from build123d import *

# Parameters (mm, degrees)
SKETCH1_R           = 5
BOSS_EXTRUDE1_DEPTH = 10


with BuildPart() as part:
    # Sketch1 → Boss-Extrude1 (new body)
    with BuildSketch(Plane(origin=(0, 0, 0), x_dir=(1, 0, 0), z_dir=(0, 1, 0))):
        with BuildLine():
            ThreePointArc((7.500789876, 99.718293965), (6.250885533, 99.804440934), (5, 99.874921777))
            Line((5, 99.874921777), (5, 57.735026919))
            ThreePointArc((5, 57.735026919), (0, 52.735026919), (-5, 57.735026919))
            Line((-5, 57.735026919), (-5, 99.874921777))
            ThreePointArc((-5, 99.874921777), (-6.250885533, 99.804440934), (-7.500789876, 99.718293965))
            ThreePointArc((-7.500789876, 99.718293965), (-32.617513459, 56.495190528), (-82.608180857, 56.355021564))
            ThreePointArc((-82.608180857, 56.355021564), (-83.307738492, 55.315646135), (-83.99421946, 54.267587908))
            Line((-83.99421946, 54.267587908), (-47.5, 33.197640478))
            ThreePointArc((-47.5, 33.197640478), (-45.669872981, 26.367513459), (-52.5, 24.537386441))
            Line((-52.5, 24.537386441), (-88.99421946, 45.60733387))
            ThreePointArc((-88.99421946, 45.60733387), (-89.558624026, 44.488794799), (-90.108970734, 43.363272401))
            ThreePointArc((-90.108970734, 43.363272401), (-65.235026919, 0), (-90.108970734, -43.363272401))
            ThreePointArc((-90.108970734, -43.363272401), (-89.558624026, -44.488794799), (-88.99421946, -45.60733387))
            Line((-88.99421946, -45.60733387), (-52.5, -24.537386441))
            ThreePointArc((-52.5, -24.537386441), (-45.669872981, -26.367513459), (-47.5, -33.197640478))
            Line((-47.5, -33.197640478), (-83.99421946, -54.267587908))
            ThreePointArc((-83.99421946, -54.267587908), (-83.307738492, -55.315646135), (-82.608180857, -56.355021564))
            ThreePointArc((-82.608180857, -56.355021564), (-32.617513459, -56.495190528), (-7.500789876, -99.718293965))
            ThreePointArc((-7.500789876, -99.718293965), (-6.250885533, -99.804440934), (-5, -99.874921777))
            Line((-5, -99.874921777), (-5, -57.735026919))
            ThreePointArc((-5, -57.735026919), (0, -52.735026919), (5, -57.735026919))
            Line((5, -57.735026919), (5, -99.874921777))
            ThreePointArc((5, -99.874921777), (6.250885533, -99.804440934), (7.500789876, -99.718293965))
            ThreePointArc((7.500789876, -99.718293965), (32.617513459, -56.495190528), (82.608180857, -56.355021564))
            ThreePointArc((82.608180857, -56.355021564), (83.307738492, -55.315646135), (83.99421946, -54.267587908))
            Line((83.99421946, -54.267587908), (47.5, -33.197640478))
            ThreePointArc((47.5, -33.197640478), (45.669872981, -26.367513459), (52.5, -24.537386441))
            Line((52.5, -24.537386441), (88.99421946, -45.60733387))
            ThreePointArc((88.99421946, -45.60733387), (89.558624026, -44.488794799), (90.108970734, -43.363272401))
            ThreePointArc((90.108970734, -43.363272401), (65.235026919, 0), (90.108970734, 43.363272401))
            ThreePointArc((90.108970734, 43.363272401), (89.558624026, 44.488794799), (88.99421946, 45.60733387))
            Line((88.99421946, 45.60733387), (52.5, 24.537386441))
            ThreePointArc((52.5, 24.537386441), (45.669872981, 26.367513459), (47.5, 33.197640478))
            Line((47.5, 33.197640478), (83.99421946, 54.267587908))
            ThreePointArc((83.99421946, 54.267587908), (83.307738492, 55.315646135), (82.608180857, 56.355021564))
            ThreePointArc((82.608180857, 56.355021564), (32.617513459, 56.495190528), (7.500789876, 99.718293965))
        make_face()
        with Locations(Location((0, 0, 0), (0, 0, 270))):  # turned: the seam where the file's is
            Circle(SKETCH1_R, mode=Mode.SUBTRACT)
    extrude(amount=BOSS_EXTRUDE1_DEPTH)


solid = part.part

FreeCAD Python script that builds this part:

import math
import FreeCAD as App
import Part
import Sketcher

doc = App.newDocument("Part")
body = doc.addObject("PartDesign::Body", "Body")

# Sketch on XZ plane
sketch1 = body.newObject("Sketcher::SketchObject", "Sketch")
sketch1.AttachmentSupport = (doc.getObject("XZ_Plane"), [""])
sketch1.MapMode = "FlatFace"
sketch1.addGeometry(Part.ArcOfCircle(Part.Circle(App.Vector(0, -0.000006, 0), App.Vector(0, 0, 1), 99.999994), math.radians(-87.134016), math.radians(-85.698324)), False)
sketch1.addGeometry(Part.LineSegment(App.Vector(5, -99.874922, 0), App.Vector(5, -57.735027, 0)), False)
sketch1.addGeometry(Part.ArcOfCircle(Part.Circle(App.Vector(0, -57.735027, 0), App.Vector(0, 0, 1), 5), math.radians(0), math.radians(180)), False)
sketch1.addGeometry(Part.LineSegment(App.Vector(-5, -57.735027, 0), App.Vector(-5, -99.874922, 0)), False)
sketch1.addGeometry(Part.ArcOfCircle(Part.Circle(App.Vector(0, -0.000006, 0), App.Vector(0, 0, 1), 99.999994), math.radians(-94.301676), math.radians(-92.865984)), False)
sketch1.addGeometry(Part.ArcOfCircle(Part.Circle(App.Vector(-57.735027, -100, 0), App.Vector(0, 0, 1), 50.235027), math.radians(0.321303), math.radians(119.678697)), False)
sketch1.addGeometry(Part.ArcOfCircle(Part.Circle(App.Vector(0.000002, 0.000001, 0), App.Vector(0, 0, 1), 100.000002), math.radians(-147.134016), math.radians(-145.698324)), False)
sketch1.addGeometry(Part.LineSegment(App.Vector(-83.994219, -54.267588, 0), App.Vector(-47.5, -33.19764, 0)), False)
sketch1.addGeometry(Part.ArcOfCircle(Part.Circle(App.Vector(-50, -28.867513, 0), App.Vector(0, 0, 1), 5), math.radians(-60), math.radians(120)), False)
sketch1.addGeometry(Part.LineSegment(App.Vector(-52.5, -24.537386, 0), App.Vector(-88.994219, -45.607334, 0)), False)
sketch1.addGeometry(Part.ArcOfCircle(Part.Circle(App.Vector(-0.000003, -0.000002, 0), App.Vector(0, 0, 1), 99.999997), math.radians(-154.301676), math.radians(-152.865984)), False)
sketch1.addGeometry(Part.ArcOfCircle(Part.Circle(App.Vector(-115.470054, 0, 0), App.Vector(0, 0, 1), 50.235027), math.radians(-59.678697), math.radians(59.678697)), False)
sketch1.addGeometry(Part.ArcOfCircle(Part.Circle(App.Vector(-0.000003, 0.000002, 0), App.Vector(0, 0, 1), 99.999997), math.radians(152.865984), math.radians(154.301676)), False)
sketch1.addGeometry(Part.LineSegment(App.Vector(-88.994219, 45.607334, 0), App.Vector(-52.5, 24.537386, 0)), False)
sketch1.addGeometry(Part.ArcOfCircle(Part.Circle(App.Vector(-50, 28.867513, 0), App.Vector(0, 0, 1), 5), math.radians(-120), math.radians(60)), False)
sketch1.addGeometry(Part.LineSegment(App.Vector(-47.5, 33.19764, 0), App.Vector(-83.994219, 54.267588, 0)), False)
sketch1.addGeometry(Part.ArcOfCircle(Part.Circle(App.Vector(0.000002, -0.000001, 0), App.Vector(0, 0, 1), 100.000002), math.radians(145.698324), math.radians(147.134016)), False)
sketch1.addGeometry(Part.ArcOfCircle(Part.Circle(App.Vector(-57.735027, 100, 0), App.Vector(0, 0, 1), 50.235027), math.radians(-119.678697), math.radians(-0.321303)), False)
sketch1.addGeometry(Part.ArcOfCircle(Part.Circle(App.Vector(0, 0.000006, 0), App.Vector(0, 0, 1), 99.999994), math.radians(92.865984), math.radians(94.301676)), False)
sketch1.addGeometry(Part.LineSegment(App.Vector(-5, 99.874922, 0), App.Vector(-5, 57.735027, 0)), False)
sketch1.addGeometry(Part.ArcOfCircle(Part.Circle(App.Vector(0, 57.735027, 0), App.Vector(0, 0, 1), 5), math.radians(180), math.radians(360)), False)
sketch1.addGeometry(Part.LineSegment(App.Vector(5, 57.735027, 0), App.Vector(5, 99.874922, 0)), False)
sketch1.addGeometry(Part.ArcOfCircle(Part.Circle(App.Vector(0, 0.000006, 0), App.Vector(0, 0, 1), 99.999994), math.radians(85.698324), math.radians(87.134016)), False)
sketch1.addGeometry(Part.ArcOfCircle(Part.Circle(App.Vector(57.735027, 100, 0), App.Vector(0, 0, 1), 50.235027), math.radians(-179.678697), math.radians(-60.321303)), False)
sketch1.addGeometry(Part.ArcOfCircle(Part.Circle(App.Vector(-0.000002, -0.000001, 0), App.Vector(0, 0, 1), 100.000002), math.radians(32.865984), math.radians(34.301676)), False)
sketch1.addGeometry(Part.LineSegment(App.Vector(83.994219, 54.267588, 0), App.Vector(47.5, 33.19764, 0)), False)
sketch1.addGeometry(Part.ArcOfCircle(Part.Circle(App.Vector(50, 28.867513, 0), App.Vector(0, 0, 1), 5), math.radians(120), math.radians(300)), False)
sketch1.addGeometry(Part.LineSegment(App.Vector(52.5, 24.537386, 0), App.Vector(88.994219, 45.607334, 0)), False)
sketch1.addGeometry(Part.ArcOfCircle(Part.Circle(App.Vector(0.000003, 0.000002, 0), App.Vector(0, 0, 1), 99.999997), math.radians(25.698324), math.radians(27.134016)), False)
sketch1.addGeometry(Part.ArcOfCircle(Part.Circle(App.Vector(115.470054, 0, 0), App.Vector(0, 0, 1), 50.235027), math.radians(120.321303), math.radians(239.678697)), False)
sketch1.addGeometry(Part.ArcOfCircle(Part.Circle(App.Vector(0.000003, -0.000002, 0), App.Vector(0, 0, 1), 99.999997), math.radians(-27.134016), math.radians(-25.698324)), False)
sketch1.addGeometry(Part.LineSegment(App.Vector(88.994219, -45.607334, 0), App.Vector(52.5, -24.537386, 0)), False)
sketch1.addGeometry(Part.ArcOfCircle(Part.Circle(App.Vector(50, -28.867513, 0), App.Vector(0, 0, 1), 5), math.radians(60), math.radians(240)), False)
sketch1.addGeometry(Part.LineSegment(App.Vector(47.5, -33.19764, 0), App.Vector(83.994219, -54.267588, 0)), False)
sketch1.addGeometry(Part.ArcOfCircle(Part.Circle(App.Vector(-0.000002, 0.000001, 0), App.Vector(0, 0, 1), 100.000002), math.radians(-34.301676), math.radians(-32.865984)), False)
sketch1.addGeometry(Part.ArcOfCircle(Part.Circle(App.Vector(57.735027, -100, 0), App.Vector(0, 0, 1), 50.235027), math.radians(60.321303), math.radians(179.678697)), False)
sketch1.addGeometry(Part.Circle(App.Vector(0, 0, 0), App.Vector(0, 0, 1), 5), False)
sketch1.addConstraint(Sketcher.Constraint("Coincident", 0, 1, 1, 1))
sketch1.addConstraint(Sketcher.Constraint("Coincident", 1, 2, 2, 1))
sketch1.addConstraint(Sketcher.Constraint("Coincident", 2, 2, 3, 1))
sketch1.addConstraint(Sketcher.Constraint("Coincident", 3, 2, 4, 2))
sketch1.addConstraint(Sketcher.Constraint("Coincident", 4, 1, 5, 1))
sketch1.addConstraint(Sketcher.Constraint("Coincident", 5, 2, 6, 2))
sketch1.addConstraint(Sketcher.Constraint("Coincident", 6, 1, 7, 1))
sketch1.addConstraint(Sketcher.Constraint("Coincident", 7, 2, 8, 1))
sketch1.addConstraint(Sketcher.Constraint("Coincident", 8, 2, 9, 1))
sketch1.addConstraint(Sketcher.Constraint("Coincident", 9, 2, 10, 2))
sketch1.addConstraint(Sketcher.Constraint("Coincident", 10, 1, 11, 1))
sketch1.addConstraint(Sketcher.Constraint("Coincident", 11, 2, 12, 2))
sketch1.addConstraint(Sketcher.Constraint("Coincident", 12, 1, 13, 1))
sketch1.addConstraint(Sketcher.Constraint("Coincident", 13, 2, 14, 1))
sketch1.addConstraint(Sketcher.Constraint("Coincident", 14, 2, 15, 1))
sketch1.addConstraint(Sketcher.Constraint("Coincident", 15, 2, 16, 2))
sketch1.addConstraint(Sketcher.Constraint("Coincident", 16, 1, 17, 1))
sketch1.addConstraint(Sketcher.Constraint("Coincident", 17, 2, 18, 2))
sketch1.addConstraint(Sketcher.Constraint("Coincident", 18, 1, 19, 1))
sketch1.addConstraint(Sketcher.Constraint("Coincident", 19, 2, 20, 1))
sketch1.addConstraint(Sketcher.Constraint("Coincident", 20, 2, 21, 1))
sketch1.addConstraint(Sketcher.Constraint("Coincident", 21, 2, 22, 2))
sketch1.addConstraint(Sketcher.Constraint("Coincident", 22, 1, 23, 1))
sketch1.addConstraint(Sketcher.Constraint("Coincident", 23, 2, 24, 2))
sketch1.addConstraint(Sketcher.Constraint("Coincident", 24, 1, 25, 1))
sketch1.addConstraint(Sketcher.Constraint("Coincident", 25, 2, 26, 1))
sketch1.addConstraint(Sketcher.Constraint("Coincident", 26, 2, 27, 1))
sketch1.addConstraint(Sketcher.Constraint("Coincident", 27, 2, 28, 2))
sketch1.addConstraint(Sketcher.Constraint("Coincident", 28, 1, 29, 1))
sketch1.addConstraint(Sketcher.Constraint("Coincident", 29, 2, 30, 2))
sketch1.addConstraint(Sketcher.Constraint("Coincident", 30, 1, 31, 1))
sketch1.addConstraint(Sketcher.Constraint("Coincident", 31, 2, 32, 1))
sketch1.addConstraint(Sketcher.Constraint("Coincident", 32, 2, 33, 1))
sketch1.addConstraint(Sketcher.Constraint("Coincident", 33, 2, 34, 2))
sketch1.addConstraint(Sketcher.Constraint("Coincident", 34, 1, 35, 1))
sketch1.addConstraint(Sketcher.Constraint("Coincident", 35, 2, 0, 2))
sketch1.addConstraint(Sketcher.Constraint("Vertical", 1))
sketch1.addConstraint(Sketcher.Constraint("Vertical", 3))
sketch1.addConstraint(Sketcher.Constraint("Vertical", 19))
sketch1.addConstraint(Sketcher.Constraint("Vertical", 21))
sketch1.addConstraint(Sketcher.Constraint("Coincident", 0, 3, -1, 1))
sketch1.addConstraint(Sketcher.Constraint("Coincident", 4, 3, -1, 1))
sketch1.addConstraint(Sketcher.Constraint("Coincident", 6, 3, -1, 1))
sketch1.addConstraint(Sketcher.Constraint("Coincident", 10, 3, -1, 1))
sketch1.addConstraint(Sketcher.Constraint("Coincident", 12, 3, -1, 1))
sketch1.addConstraint(Sketcher.Constraint("Coincident", 16, 3, -1, 1))
sketch1.addConstraint(Sketcher.Constraint("Coincident", 18, 3, -1, 1))
sketch1.addConstraint(Sketcher.Constraint("Coincident", 22, 3, -1, 1))
sketch1.addConstraint(Sketcher.Constraint("Coincident", 24, 3, -1, 1))
sketch1.addConstraint(Sketcher.Constraint("Coincident", 28, 3, -1, 1))
sketch1.addConstraint(Sketcher.Constraint("Coincident", 30, 3, -1, 1))
sketch1.addConstraint(Sketcher.Constraint("Coincident", 34, 3, -1, 1))
sketch1.addConstraint(Sketcher.Constraint("Coincident", 36, 3, -1, 1))
sketch1.addConstraint(Sketcher.Constraint("PointOnObject", 2, 3, -2))
sketch1.addConstraint(Sketcher.Constraint("PointOnObject", 11, 3, -1))
sketch1.addConstraint(Sketcher.Constraint("PointOnObject", 20, 3, -2))
sketch1.addConstraint(Sketcher.Constraint("PointOnObject", 29, 3, -1))
sketch1.addConstraint(Sketcher.Constraint("Diameter", 36, 10.0))
sketch1.addConstraint(Sketcher.Constraint("Radius", 2, 5.0))
sketch1.addConstraint(Sketcher.Constraint("Radius", 6, 100.000002))
sketch1.addConstraint(Sketcher.Constraint("Radius", 8, 5.0))
sketch1.addConstraint(Sketcher.Constraint("Radius", 14, 5.0))
sketch1.addConstraint(Sketcher.Constraint("Radius", 16, 100.000002))
sketch1.addConstraint(Sketcher.Constraint("Radius", 20, 5.0))
sketch1.addConstraint(Sketcher.Constraint("Radius", 24, 100.000002))
sketch1.addConstraint(Sketcher.Constraint("Radius", 26, 5.0))
sketch1.addConstraint(Sketcher.Constraint("Radius", 32, 5.0))
sketch1.addConstraint(Sketcher.Constraint("Radius", 34, 100.000002))
sketch1.addConstraint(Sketcher.Constraint("DistanceY", 5, 3, -1, 1, 100.0))
sketch1.addConstraint(Sketcher.Constraint("DistanceX", 8, 3, -1, 1, 50.0))
sketch1.addConstraint(Sketcher.Constraint("DistanceX", 14, 3, -1, 1, 50.0))
sketch1.addConstraint(Sketcher.Constraint("DistanceY", -1, 1, 17, 3, 100.0))
sketch1.addConstraint(Sketcher.Constraint("DistanceY", -1, 1, 23, 3, 100.0))
sketch1.addConstraint(Sketcher.Constraint("DistanceX", -1, 1, 26, 3, 50.0))
sketch1.addConstraint(Sketcher.Constraint("DistanceX", -1, 1, 32, 3, 50.0))
sketch1.addConstraint(Sketcher.Constraint("DistanceY", 35, 3, -1, 1, 100.0))
sketch1.addConstraint(Sketcher.Constraint("DistanceX", 7, 2, -1, 1, 47.5))
sketch1.addConstraint(Sketcher.Constraint("DistanceX", 8, 2, -1, 1, 52.5))
sketch1.addConstraint(Sketcher.Constraint("DistanceX", 13, 2, -1, 1, 52.5))
sketch1.addConstraint(Sketcher.Constraint("DistanceX", 14, 2, -1, 1, 47.5))
sketch1.addConstraint(Sketcher.Constraint("DistanceX", -1, 1, 25, 2, 47.5))
sketch1.addConstraint(Sketcher.Constraint("DistanceX", -1, 1, 26, 2, 52.5))
sketch1.addConstraint(Sketcher.Constraint("DistanceX", -1, 1, 31, 2, 52.5))
sketch1.addConstraint(Sketcher.Constraint("DistanceX", -1, 1, 32, 2, 47.5))
sketch1.addConstraint(Sketcher.Constraint("Radius", 0, 99.999994))
sketch1.addConstraint(Sketcher.Constraint("Radius", 4, 99.999994))
sketch1.addConstraint(Sketcher.Constraint("Radius", 5, 50.235027))
sketch1.addConstraint(Sketcher.Constraint("Radius", 10, 99.999997))
sketch1.addConstraint(Sketcher.Constraint("Radius", 11, 50.235027))
sketch1.addConstraint(Sketcher.Constraint("Radius", 12, 99.999997))
sketch1.addConstraint(Sketcher.Constraint("Radius", 17, 50.235027))
sketch1.addConstraint(Sketcher.Constraint("Radius", 18, 99.999994))
sketch1.addConstraint(Sketcher.Constraint("Radius", 22, 99.999994))
sketch1.addConstraint(Sketcher.Constraint("Radius", 23, 50.235027))
sketch1.addConstraint(Sketcher.Constraint("Radius", 28, 99.999997))
sketch1.addConstraint(Sketcher.Constraint("Radius", 29, 50.235027))
sketch1.addConstraint(Sketcher.Constraint("Radius", 30, 99.999997))
sketch1.addConstraint(Sketcher.Constraint("Radius", 35, 50.235027))
sketch1.addConstraint(Sketcher.Constraint("DistanceY", 1, 1, 1, 2, 42.139895))
sketch1.addConstraint(Sketcher.Constraint("DistanceY", 3, 2, 3, 1, 42.139895))
sketch1.addConstraint(Sketcher.Constraint("DistanceY", 19, 2, 19, 1, 42.139895))
sketch1.addConstraint(Sketcher.Constraint("DistanceY", 21, 1, 21, 2, 42.139895))
sketch1.addConstraint(Sketcher.Constraint("DistanceX", 4, 1, -1, 1, 7.50079))
sketch1.addConstraint(Sketcher.Constraint("DistanceX", 6, 1, -1, 1, 83.994219))
sketch1.addConstraint(Sketcher.Constraint("DistanceY", 7, 2, -1, 1, 33.19764))
sketch1.addConstraint(Sketcher.Constraint("DistanceX", 9, 2, -1, 1, 88.994219))
sketch1.addConstraint(Sketcher.Constraint("DistanceX", 10, 1, -1, 1, 90.108971))
sketch1.addConstraint(Sketcher.Constraint("DistanceX", 12, 1, -1, 1, 88.994219))
sketch1.addConstraint(Sketcher.Constraint("DistanceY", -1, 1, 14, 2, 33.19764))
sketch1.addConstraint(Sketcher.Constraint("DistanceX", 15, 2, -1, 1, 83.994219))
sketch1.addConstraint(Sketcher.Constraint("DistanceX", 16, 1, -1, 1, 82.608181))
sketch1.addConstraint(Sketcher.Constraint("DistanceX", -1, 1, 22, 1, 7.50079))
sketch1.addConstraint(Sketcher.Constraint("DistanceX", -1, 1, 24, 1, 83.994219))
sketch1.addConstraint(Sketcher.Constraint("DistanceY", -1, 1, 25, 2, 33.19764))
sketch1.addConstraint(Sketcher.Constraint("DistanceX", -1, 1, 27, 2, 88.994219))
sketch1.addConstraint(Sketcher.Constraint("DistanceX", -1, 1, 28, 1, 90.108971))
sketch1.addConstraint(Sketcher.Constraint("DistanceX", -1, 1, 30, 1, 88.994219))
sketch1.addConstraint(Sketcher.Constraint("DistanceY", 32, 2, -1, 1, 33.19764))
sketch1.addConstraint(Sketcher.Constraint("DistanceX", -1, 1, 33, 2, 83.994219))
sketch1.addConstraint(Sketcher.Constraint("DistanceX", -1, 1, 34, 1, 82.608181))
sketch1.addConstraint(Sketcher.Constraint("DistanceY", 2, 3, -1, 1, 57.735027))
sketch1.addConstraint(Sketcher.Constraint("DistanceY", -1, 1, 20, 3, 57.735027))
pad1 = body.newObject("PartDesign::Pad", "Pad")
pad1.Profile = sketch1
pad1.Length = 10
pad1.Reversed = True

doc.recompute()
